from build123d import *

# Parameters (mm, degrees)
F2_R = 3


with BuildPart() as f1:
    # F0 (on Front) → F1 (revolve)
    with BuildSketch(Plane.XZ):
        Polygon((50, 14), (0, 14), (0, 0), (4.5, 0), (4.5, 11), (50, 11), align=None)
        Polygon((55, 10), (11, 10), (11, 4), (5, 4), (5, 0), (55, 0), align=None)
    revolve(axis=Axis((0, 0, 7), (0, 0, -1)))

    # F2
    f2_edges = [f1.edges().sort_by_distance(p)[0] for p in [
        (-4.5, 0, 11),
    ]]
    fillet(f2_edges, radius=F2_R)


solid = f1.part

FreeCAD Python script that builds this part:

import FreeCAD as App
import Part
import Sketcher


def edges_at(feature, points):
    """Names of the edges that pass closest to the given points."""
    edges = feature.Shape.Edges
    near = lambda p: min(range(len(edges)), key=lambda i: edges[i].distToShape(Part.Vertex(*p))[0])
    return sorted({f"Edge{near(p) + 1}" for p in points})


def add_polygon(sketch, points):
    """Adds a closed chain of lines whose ends are joined by coincident constraints."""
    first, n = sketch.GeometryCount, len(points)
    for a, b in zip(points, points[1:] + points[:1]):
        sketch.addGeometry(Part.LineSegment(App.Vector(*a, 0), App.Vector(*b, 0)), False)
    for i in range(n):
        sketch.addConstraint(Sketcher.Constraint("Coincident", first + i, 2, first + (i + 1) % n, 1))

doc = App.newDocument("Part")
body = doc.addObject("PartDesign::Body", "Body")
body.AllowCompound = True

# Sketch on XZ plane
sketch1 = body.newObject("Sketcher::SketchObject", "Sketch")
sketch1.AttachmentSupport = (doc.getObject("XZ_Plane"), [""])
sketch1.MapMode = "FlatFace"
add_polygon(sketch1, [(50, 14), (0, 14), (0, 0), (4.5, 0), (4.5, 11), (50, 11)])  # lines 0-5
add_polygon(sketch1, [(55, 10), (11, 10), (11, 4), (5, 4), (5, 0), (55, 0)])  # lines 6-11
sketch1.addConstraint([
    Sketcher.Constraint("Horizontal", 0),
    Sketcher.Constraint("Vertical", 1),
    Sketcher.Constraint("Horizontal", 2),
    Sketcher.Constraint("Vertical", 3),
    Sketcher.Constraint("Horizontal", 4),
    Sketcher.Constraint("Vertical", 5),
    Sketcher.Constraint("Horizontal", 6),
    Sketcher.Constraint("Vertical", 7),
    Sketcher.Constraint("Horizontal", 8),
    Sketcher.Constraint("Vertical", 9),
    Sketcher.Constraint("Horizontal", 10),
    Sketcher.Constraint("Vertical", 11),
    Sketcher.Constraint("Coincident", 1, 2, -1, 1),
    Sketcher.Constraint("PointOnObject", 9, 2, -1),
    Sketcher.Constraint("Equal", 0, 10),
    Sketcher.Constraint("Equal", 8, 7),
    Sketcher.Constraint("DistanceX", 0, 2, 0, 1, 50.0),
    Sketcher.Constraint("DistanceX", 6, 2, 6, 1, 44.0),
    Sketcher.Constraint("DistanceY", 1, 2, 1, 1, 14.0),
    Sketcher.Constraint("DistanceY", 3, 1, 3, 2, 11.0),
    Sketcher.Constraint("DistanceY", 9, 2, 9, 1, 4.0),
    Sketcher.Constraint("DistanceX", 2, 1, 2, 2, 4.5),
    Sketcher.Constraint("DistanceX", -1, 1, 6, 2, 11.0),
])
revolution = body.newObject("PartDesign::Revolution", "Revolution")
revolution.Profile = sketch1
revolution.ReferenceAxis = (sketch1, ["V_Axis"])
revolution.Angle = 360
doc.recompute()

fillet = body.newObject("PartDesign::Fillet", "Fillet")
fillet.Base = (revolution, edges_at(revolution, [(-4.5, 0, 11)]))
fillet.Radius = 3

doc.recompute()
